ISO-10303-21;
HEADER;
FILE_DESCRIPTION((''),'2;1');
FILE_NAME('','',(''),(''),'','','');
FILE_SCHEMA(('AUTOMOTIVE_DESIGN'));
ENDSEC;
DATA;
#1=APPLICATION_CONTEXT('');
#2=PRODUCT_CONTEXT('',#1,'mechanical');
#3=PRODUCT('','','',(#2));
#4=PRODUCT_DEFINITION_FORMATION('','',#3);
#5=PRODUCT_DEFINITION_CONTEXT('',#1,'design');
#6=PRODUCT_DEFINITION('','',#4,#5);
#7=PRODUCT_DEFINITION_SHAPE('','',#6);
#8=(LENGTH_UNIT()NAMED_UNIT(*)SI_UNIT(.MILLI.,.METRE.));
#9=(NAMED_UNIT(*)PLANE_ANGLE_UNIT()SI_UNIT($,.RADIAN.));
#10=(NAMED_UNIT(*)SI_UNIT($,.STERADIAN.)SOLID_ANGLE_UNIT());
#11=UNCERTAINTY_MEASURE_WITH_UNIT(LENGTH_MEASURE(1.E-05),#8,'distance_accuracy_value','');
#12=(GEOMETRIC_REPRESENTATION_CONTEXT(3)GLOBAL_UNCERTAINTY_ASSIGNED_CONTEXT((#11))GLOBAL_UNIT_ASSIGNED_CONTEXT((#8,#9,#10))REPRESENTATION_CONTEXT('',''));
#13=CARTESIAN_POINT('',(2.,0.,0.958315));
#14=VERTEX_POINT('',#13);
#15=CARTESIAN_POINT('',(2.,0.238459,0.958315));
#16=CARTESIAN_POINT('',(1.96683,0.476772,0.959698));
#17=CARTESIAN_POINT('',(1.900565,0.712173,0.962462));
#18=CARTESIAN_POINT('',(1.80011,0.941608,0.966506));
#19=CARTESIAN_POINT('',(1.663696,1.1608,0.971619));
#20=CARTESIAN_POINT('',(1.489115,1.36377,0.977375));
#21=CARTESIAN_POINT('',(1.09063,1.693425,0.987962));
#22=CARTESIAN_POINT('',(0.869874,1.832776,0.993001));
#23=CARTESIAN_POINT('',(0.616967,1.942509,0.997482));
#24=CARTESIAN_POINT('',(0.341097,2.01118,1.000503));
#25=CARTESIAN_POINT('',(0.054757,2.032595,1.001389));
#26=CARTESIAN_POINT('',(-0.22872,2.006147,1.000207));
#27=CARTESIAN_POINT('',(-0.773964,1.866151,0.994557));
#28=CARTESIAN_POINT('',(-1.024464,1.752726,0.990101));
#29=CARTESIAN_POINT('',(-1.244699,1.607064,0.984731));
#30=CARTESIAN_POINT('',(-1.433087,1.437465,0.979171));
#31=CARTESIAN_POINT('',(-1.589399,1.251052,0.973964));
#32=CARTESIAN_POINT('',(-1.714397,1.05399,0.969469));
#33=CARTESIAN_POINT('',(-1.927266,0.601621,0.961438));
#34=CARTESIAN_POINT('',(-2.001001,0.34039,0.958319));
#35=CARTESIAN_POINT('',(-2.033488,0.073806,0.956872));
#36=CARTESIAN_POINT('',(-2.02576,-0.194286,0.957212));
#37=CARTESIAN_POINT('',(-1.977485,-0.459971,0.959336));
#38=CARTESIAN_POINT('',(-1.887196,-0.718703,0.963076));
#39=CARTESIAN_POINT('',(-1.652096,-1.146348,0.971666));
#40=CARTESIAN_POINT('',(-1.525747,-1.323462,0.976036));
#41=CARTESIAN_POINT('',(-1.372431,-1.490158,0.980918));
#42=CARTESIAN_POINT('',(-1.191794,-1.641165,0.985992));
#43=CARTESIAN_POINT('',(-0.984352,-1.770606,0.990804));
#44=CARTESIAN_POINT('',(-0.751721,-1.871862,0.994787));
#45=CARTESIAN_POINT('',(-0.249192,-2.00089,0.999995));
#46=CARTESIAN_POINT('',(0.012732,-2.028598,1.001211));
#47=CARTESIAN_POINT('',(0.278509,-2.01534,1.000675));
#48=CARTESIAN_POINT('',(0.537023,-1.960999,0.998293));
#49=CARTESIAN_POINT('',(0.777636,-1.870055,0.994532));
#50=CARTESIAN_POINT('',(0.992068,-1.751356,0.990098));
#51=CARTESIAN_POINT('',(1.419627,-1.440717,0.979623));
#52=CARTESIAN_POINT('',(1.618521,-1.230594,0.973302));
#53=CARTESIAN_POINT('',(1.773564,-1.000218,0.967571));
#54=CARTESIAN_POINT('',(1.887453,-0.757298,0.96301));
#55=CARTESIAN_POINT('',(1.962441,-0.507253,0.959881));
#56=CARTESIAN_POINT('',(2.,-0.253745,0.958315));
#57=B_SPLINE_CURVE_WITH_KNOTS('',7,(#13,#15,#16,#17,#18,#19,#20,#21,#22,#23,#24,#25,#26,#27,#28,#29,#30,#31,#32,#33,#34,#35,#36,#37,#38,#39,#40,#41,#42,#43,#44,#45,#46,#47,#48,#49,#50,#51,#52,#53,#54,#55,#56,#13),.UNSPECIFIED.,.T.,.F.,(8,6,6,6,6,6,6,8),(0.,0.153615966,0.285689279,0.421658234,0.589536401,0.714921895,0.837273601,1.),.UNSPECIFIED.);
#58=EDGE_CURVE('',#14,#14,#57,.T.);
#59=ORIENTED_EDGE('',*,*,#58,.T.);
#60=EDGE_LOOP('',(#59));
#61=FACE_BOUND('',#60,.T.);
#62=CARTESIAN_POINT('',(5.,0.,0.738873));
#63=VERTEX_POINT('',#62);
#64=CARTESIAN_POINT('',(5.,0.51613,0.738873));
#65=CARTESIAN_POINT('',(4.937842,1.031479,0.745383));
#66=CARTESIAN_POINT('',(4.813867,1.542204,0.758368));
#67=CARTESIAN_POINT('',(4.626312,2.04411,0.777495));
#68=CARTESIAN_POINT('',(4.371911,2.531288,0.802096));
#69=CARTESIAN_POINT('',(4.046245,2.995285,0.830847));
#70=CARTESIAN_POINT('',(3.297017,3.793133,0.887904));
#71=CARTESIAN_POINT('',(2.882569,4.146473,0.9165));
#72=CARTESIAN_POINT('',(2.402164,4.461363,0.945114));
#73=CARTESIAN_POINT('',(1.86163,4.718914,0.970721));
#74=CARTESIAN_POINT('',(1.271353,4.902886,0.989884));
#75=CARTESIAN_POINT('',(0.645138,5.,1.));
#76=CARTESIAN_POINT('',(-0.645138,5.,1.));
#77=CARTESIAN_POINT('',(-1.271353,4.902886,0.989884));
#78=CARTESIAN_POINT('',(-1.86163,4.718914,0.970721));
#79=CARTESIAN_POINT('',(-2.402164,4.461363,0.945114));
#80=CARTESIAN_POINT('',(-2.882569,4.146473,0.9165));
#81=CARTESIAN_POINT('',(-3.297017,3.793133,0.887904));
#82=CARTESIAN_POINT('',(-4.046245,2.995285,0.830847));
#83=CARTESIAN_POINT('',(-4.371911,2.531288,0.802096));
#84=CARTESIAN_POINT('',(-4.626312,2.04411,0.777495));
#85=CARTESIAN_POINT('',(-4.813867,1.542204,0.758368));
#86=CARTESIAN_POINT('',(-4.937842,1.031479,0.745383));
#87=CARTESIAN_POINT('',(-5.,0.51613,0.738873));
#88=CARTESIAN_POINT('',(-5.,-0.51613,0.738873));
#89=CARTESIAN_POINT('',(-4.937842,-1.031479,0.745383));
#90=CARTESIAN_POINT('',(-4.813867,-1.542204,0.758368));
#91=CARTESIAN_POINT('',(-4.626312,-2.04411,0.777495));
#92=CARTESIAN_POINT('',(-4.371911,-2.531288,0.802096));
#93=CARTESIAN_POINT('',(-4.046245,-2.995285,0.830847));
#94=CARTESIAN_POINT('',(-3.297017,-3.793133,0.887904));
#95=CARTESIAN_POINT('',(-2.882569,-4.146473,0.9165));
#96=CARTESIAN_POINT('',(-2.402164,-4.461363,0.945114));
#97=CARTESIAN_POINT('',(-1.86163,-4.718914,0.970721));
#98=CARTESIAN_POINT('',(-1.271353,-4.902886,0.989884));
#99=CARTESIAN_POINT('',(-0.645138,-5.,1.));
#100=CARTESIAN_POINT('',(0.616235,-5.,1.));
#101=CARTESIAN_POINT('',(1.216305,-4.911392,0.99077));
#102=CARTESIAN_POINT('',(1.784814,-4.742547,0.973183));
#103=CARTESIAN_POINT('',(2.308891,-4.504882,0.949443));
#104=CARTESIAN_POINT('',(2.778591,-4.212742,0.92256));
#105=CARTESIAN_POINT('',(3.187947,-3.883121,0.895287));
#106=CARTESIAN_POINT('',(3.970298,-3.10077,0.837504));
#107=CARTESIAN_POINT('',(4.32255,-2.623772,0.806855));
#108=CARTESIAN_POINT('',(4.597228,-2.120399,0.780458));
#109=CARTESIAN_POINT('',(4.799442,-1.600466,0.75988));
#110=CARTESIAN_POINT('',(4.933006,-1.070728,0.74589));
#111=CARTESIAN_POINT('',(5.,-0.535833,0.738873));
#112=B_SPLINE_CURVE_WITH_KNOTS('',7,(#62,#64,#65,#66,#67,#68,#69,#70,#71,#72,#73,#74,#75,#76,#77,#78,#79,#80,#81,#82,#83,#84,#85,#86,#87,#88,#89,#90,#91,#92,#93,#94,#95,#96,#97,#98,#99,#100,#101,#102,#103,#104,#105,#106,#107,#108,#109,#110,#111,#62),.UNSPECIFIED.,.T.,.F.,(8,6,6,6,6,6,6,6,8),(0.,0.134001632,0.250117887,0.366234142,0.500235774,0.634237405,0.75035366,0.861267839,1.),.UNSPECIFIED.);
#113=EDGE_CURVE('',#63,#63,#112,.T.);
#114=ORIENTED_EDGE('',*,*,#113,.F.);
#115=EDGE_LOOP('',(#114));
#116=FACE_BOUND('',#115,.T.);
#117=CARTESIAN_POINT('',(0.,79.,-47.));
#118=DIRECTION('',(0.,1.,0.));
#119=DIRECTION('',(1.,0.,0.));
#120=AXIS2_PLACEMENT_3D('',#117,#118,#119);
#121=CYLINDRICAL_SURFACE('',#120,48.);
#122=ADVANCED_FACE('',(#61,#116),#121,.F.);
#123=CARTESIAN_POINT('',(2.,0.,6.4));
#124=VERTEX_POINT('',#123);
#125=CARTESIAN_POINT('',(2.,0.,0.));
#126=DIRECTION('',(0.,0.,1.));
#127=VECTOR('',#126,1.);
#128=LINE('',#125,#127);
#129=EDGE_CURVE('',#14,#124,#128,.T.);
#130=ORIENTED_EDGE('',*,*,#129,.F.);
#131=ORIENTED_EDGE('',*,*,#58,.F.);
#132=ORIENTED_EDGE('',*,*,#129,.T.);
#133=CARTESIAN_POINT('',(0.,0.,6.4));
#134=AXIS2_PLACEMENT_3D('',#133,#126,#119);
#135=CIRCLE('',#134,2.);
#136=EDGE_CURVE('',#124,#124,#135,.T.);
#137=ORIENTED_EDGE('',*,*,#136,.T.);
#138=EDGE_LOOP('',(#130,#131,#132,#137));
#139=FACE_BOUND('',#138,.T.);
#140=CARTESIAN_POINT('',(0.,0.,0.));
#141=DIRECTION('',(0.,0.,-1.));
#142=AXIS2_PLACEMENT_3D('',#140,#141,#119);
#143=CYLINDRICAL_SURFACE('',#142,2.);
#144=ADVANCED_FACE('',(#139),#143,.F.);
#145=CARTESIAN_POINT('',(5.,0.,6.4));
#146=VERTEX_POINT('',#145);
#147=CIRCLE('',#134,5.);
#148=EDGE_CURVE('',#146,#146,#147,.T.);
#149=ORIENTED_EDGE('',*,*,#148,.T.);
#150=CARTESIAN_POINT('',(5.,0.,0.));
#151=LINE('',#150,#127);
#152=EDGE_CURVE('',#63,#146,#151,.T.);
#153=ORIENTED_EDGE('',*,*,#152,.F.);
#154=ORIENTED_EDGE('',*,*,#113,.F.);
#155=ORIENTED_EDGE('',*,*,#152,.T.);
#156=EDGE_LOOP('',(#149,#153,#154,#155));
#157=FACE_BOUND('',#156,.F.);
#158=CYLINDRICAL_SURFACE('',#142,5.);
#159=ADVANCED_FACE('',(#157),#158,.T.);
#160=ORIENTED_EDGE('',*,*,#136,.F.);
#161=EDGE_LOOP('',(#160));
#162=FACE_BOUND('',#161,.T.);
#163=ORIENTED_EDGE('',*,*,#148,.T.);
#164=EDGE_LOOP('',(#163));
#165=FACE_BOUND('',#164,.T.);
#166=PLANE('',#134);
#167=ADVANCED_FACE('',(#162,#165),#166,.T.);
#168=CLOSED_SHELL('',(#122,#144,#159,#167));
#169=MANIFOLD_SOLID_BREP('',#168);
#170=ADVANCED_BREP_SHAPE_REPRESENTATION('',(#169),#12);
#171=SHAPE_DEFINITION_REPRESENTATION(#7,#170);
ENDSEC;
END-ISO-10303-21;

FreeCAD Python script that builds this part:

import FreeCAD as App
import Part
import Sketcher

doc = App.newDocument("Part")
body = doc.addObject("PartDesign::Body", "Body")

sketch1 = doc.addObject("Sketcher::SketchObject", "Sketch")
body.addObject(sketch1)
sketch1.AttachmentSupport = (doc.XY_Plane, [""])
sketch1.MapMode = "FlatFace"
sketch1.addGeometry(Part.Circle(App.Vector(0, 0, 0), App.Vector(0, 0, 1), 48), False)
sketch1.addConstraint([
    Sketcher.Constraint("Coincident", 0, 3, -1, 1),
    Sketcher.Constraint("Diameter", 0, 96.0),
])
pad1 = doc.addObject("PartDesign::Pad", "Pad")
body.addObject(pad1)
pad1.Profile = sketch1
pad1.Length = 245
body2 = doc.addObject("PartDesign::Body", "Body001")
doc.recompute()

body.Placement = App.Placement(App.Vector(0, 0, 0), App.Rotation(App.Vector(1, 0, 0), 90))
boolean = doc.addObject("PartDesign::Boolean", "Boolean")
body2.addObject(boolean)
boolean.Type = "Fuse"
boolean.addObjects([body])
body3 = doc.addObject("PartDesign::Body", "Body002")
doc.recompute()

body2.Placement = App.Placement(App.Vector(0, 79, -47), App.Rotation(App.Vector(0, 0, 1), 0))
boolean2 = doc.addObject("PartDesign::Boolean", "Boolean001")
body3.addObject(boolean2)
boolean2.Type = "Fuse"
boolean2.addObjects([body2])
body4 = doc.addObject("PartDesign::Body", "Body003")

sketch2 = doc.addObject("Sketcher::SketchObject", "Sketch001")
body4.addObject(sketch2)
sketch2.AttachmentSupport = (doc.getObject("XY_Plane003"), [""])
sketch2.MapMode = "FlatFace"
sketch2.addGeometry(Part.Circle(App.Vector(0, 0, 0), App.Vector(0, 0, 1), 2), False)
sketch2.addConstraint([
    Sketcher.Constraint("Coincident", 0, 3, -1, 1),
    Sketcher.Constraint("Diameter", 0, 4.0),
])
pad2 = doc.addObject("PartDesign::Pad", "Pad001")
body4.addObject(pad2)
pad2.Profile = sketch2
pad2.Length = 6.4
body5 = doc.addObject("PartDesign::Body", "Body004")

sketch3 = doc.addObject("Sketcher::SketchObject", "Sketch002")
body5.addObject(sketch3)
sketch3.AttachmentSupport = (doc.getObject("XY_Plane004"), [""])
sketch3.MapMode = "FlatFace"
sketch3.addGeometry(Part.Circle(App.Vector(0, 0, 0), App.Vector(0, 0, 1), 5), False)
sketch3.addConstraint([
    Sketcher.Constraint("Coincident", 0, 3, -1, 1),
    Sketcher.Constraint("Diameter", 0, 10.0),
])
pad3 = doc.addObject("PartDesign::Pad", "Pad002")
body5.addObject(pad3)
pad3.Profile = sketch3
pad3.Length = 6.4
doc.recompute()

boolean3 = doc.addObject("PartDesign::Boolean", "Boolean002")
body5.addObject(boolean3)
boolean3.Type = "Cut"
boolean3.addObjects([body4])
doc.recompute()

boolean4 = doc.addObject("PartDesign::Boolean", "Boolean003")
body5.addObject(boolean4)
boolean4.Type = "Cut"
boolean4.addObjects([body3])

doc.recompute()
